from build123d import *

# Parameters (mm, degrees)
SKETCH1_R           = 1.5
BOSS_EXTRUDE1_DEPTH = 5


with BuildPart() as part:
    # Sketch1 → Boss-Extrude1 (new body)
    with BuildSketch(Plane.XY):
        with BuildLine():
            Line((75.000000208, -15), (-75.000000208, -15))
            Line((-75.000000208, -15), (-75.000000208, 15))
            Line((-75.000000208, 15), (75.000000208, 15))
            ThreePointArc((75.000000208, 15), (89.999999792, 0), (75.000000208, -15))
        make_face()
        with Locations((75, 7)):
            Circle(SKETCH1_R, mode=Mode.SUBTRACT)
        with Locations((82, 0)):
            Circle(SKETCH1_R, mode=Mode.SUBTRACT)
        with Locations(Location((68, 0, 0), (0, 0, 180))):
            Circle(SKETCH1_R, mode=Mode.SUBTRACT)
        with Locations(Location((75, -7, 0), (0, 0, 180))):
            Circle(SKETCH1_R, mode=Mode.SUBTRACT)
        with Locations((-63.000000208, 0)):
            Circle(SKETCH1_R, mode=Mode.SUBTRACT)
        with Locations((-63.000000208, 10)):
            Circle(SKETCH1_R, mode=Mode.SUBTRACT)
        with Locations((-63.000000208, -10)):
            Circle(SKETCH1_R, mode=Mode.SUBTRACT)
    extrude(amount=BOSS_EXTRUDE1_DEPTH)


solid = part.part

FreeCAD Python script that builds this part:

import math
import FreeCAD as App
import Part
import Sketcher

doc = App.newDocument("Part")
params = doc.addObject("Spreadsheet::Sheet", "Params")
for row, (alias, value) in enumerate([
    ("sketch1_diameter", "3 mm"),
    ("sketch1_radius", "15 mm"),
    ("sketch1_width", "150 mm"),
    ("pad1_length", "5 mm"),
], start=1):
    params.set(f"A{row}", alias)
    params.set(f"B{row}", "=" + value)
    params.setAlias(f"B{row}", alias)

body = doc.addObject("PartDesign::Body", "Body")

sketch1 = body.newObject("Sketcher::SketchObject", "Sketch")
sketch1.AttachmentSupport = (doc.getObject("XY_Plane"), [""])
sketch1.MapMode = "FlatFace"
sketch1.addGeometry(Part.LineSegment(App.Vector(-75, -15, 0), App.Vector(75, -15, 0)), False)
sketch1.addGeometry(Part.ArcOfCircle(Part.Circle(App.Vector(75, 0, 0), App.Vector(0, 0, 1), 15), math.radians(-89.999998), math.radians(89.999998)), False)
sketch1.addGeometry(Part.LineSegment(App.Vector(75, 15, 0), App.Vector(-75, 15, 0)), False)
sketch1.addGeometry(Part.LineSegment(App.Vector(-75, 15, 0), App.Vector(-75, -15, 0)), False)
sketch1.addGeometry(Part.Circle(App.Vector(75, -7, 0), App.Vector(0, 0, 1), 1.5), False)
sketch1.addGeometry(Part.Circle(App.Vector(-63, -10, 0), App.Vector(0, 0, 1), 1.5), False)
sketch1.addGeometry(Part.Circle(App.Vector(82, 0, 0), App.Vector(0, 0, 1), 1.5), False)
sketch1.addGeometry(Part.Circle(App.Vector(68, 0, 0), App.Vector(0, 0, 1), 1.5), False)
sketch1.addGeometry(Part.Circle(App.Vector(75, 7, 0), App.Vector(0, 0, 1), 1.5), False)
sketch1.addGeometry(Part.Circle(App.Vector(-63, 0, 0), App.Vector(0, 0, 1), 1.5), False)
sketch1.addGeometry(Part.Circle(App.Vector(-63, 10, 0), App.Vector(0, 0, 1), 1.5), False)
sketch1.addConstraint(Sketcher.Constraint("Tangent", 0, 2, 1, 1))
sketch1.addConstraint(Sketcher.Constraint("Tangent", 1, 2, 2, 1))
sketch1.addConstraint(Sketcher.Constraint("Coincident", 2, 2, 3, 1))
sketch1.addConstraint(Sketcher.Constraint("Coincident", 3, 2, 0, 1))
sketch1.addConstraint(Sketcher.Constraint("Horizontal", 0))
sketch1.addConstraint(Sketcher.Constraint("Horizontal", 2))
sketch1.addConstraint(Sketcher.Constraint("Vertical", 3))
sketch1.addConstraint(Sketcher.Constraint("Equal", 4, 5))
sketch1.addConstraint(Sketcher.Constraint("Equal", 5, 6))
sketch1.addConstraint(Sketcher.Constraint("Equal", 6, 7))
sketch1.addConstraint(Sketcher.Constraint("Equal", 7, 8))
sketch1.addConstraint(Sketcher.Constraint("Equal", 8, 9))
sketch1.addConstraint(Sketcher.Constraint("Equal", 9, 10))
sketch1.addConstraint(Sketcher.Constraint("Symmetric", 0, 2, 2, 2, -1, 1))
sketch1.addConstraint(Sketcher.Constraint("Symmetric", 4, 3, 8, 3, -1))
sketch1.addConstraint(Sketcher.Constraint("Symmetric", 5, 3, 10, 3, -1))
sketch1.addConstraint(Sketcher.Constraint("PointOnObject", 6, 3, -1))
sketch1.addConstraint(Sketcher.Constraint("PointOnObject", 7, 3, -1))
sketch1.addConstraint(Sketcher.Constraint("PointOnObject", 9, 3, -1))
sketch1.addConstraint(Sketcher.Constraint("Vertical", 1, 3, 4, 3))
sketch1.addConstraint(Sketcher.Constraint("Vertical", 5, 3, 9, 3))
sketch1.addConstraint(Sketcher.Constraint("Diameter", 4, 3.0))
sketch1.addConstraint(Sketcher.Constraint("Radius", 1, 15.0))
sketch1.addConstraint(Sketcher.Constraint("DistanceX", 0, 1, 0, 2, 150.0))
sketch1.addConstraint(Sketcher.Constraint("DistanceY", 4, 3, -1, 1, 7.0))
sketch1.addConstraint(Sketcher.Constraint("DistanceX", 5, 3, -1, 1, 63.0))
sketch1.addConstraint(Sketcher.Constraint("DistanceY", 5, 3, -1, 1, 10.0))
sketch1.addConstraint(Sketcher.Constraint("DistanceX", -1, 1, 6, 3, 82.0))
sketch1.addConstraint(Sketcher.Constraint("DistanceX", -1, 1, 7, 3, 68.0))
sketch1.setExpression("Constraints[21]", "Params.sketch1_diameter")
sketch1.setExpression("Constraints[22]", "Params.sketch1_radius")
sketch1.setExpression("Constraints[23]", "Params.sketch1_width")
pad1 = body.newObject("PartDesign::Pad", "Pad")
pad1.Profile = sketch1
pad1.setExpression("Length", "Params.pad1_length")

doc.recompute()
